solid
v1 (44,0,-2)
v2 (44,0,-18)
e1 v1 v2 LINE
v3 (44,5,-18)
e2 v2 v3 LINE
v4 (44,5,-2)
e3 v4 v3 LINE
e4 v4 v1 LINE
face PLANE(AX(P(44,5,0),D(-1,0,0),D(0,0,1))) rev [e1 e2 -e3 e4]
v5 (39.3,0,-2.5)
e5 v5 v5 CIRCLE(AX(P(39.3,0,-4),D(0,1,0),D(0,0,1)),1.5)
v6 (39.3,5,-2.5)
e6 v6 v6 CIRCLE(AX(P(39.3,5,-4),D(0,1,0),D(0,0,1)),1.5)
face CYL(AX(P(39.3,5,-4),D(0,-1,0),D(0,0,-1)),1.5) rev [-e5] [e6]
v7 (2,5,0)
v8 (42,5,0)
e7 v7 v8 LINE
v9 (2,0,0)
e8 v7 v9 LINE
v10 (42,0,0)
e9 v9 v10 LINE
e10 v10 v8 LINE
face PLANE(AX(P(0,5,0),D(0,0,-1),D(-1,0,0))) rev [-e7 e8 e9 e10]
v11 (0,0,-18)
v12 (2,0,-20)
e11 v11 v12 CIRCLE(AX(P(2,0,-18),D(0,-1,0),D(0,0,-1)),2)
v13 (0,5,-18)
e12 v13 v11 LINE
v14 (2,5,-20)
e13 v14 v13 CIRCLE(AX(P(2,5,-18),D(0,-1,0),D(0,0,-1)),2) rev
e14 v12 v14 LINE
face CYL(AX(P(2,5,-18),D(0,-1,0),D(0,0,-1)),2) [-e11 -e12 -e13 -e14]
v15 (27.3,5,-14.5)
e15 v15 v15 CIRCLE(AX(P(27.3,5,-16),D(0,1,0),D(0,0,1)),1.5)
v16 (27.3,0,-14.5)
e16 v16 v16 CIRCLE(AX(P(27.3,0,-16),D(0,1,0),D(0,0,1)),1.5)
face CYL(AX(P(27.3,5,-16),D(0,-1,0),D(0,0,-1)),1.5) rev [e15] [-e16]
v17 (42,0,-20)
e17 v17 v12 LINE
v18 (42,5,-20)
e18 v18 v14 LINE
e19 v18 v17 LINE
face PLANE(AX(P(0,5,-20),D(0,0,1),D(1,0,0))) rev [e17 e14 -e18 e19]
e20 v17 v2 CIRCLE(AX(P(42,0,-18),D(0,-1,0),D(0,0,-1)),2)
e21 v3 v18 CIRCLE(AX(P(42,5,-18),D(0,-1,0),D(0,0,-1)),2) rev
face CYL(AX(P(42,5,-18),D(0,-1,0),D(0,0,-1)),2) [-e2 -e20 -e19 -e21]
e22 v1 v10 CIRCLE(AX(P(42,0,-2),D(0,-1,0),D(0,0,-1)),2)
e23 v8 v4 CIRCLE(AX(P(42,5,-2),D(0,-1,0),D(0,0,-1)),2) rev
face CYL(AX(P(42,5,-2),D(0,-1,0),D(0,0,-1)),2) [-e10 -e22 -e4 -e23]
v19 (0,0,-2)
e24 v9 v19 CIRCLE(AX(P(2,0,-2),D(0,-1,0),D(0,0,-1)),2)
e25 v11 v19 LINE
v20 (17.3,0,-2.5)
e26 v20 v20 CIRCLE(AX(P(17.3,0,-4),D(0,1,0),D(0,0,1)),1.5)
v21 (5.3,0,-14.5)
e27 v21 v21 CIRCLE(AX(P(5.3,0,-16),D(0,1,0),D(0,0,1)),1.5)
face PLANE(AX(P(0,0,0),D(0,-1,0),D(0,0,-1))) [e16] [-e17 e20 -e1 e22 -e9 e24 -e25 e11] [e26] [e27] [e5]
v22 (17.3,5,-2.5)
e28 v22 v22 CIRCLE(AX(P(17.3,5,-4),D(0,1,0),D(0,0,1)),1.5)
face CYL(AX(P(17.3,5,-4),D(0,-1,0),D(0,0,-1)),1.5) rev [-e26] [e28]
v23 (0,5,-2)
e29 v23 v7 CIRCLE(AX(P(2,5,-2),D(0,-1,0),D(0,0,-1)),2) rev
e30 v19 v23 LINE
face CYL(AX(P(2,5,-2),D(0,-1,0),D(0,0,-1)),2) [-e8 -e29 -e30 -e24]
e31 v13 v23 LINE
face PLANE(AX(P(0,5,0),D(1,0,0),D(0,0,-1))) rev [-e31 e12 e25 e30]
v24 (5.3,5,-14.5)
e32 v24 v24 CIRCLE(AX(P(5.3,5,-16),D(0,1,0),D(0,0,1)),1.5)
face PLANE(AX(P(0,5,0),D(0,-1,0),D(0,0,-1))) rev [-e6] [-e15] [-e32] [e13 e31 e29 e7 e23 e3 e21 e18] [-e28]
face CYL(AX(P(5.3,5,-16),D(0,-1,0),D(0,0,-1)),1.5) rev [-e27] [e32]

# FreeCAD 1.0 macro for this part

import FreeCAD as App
import Part
import Sketcher
from FreeCAD import Vector
Q = App.Units.Quantity


def edges_at(feature, points):
    """Names of the edges that pass closest to the given points."""
    edges = feature.Shape.Edges
    near = lambda p: min(range(len(edges)), key=lambda i: edges[i].distToShape(Part.Vertex(*p))[0])
    return sorted({f"Edge{near(p) + 1}" for p in points})

doc = App.newDocument("Part")
body = doc.addObject("PartDesign::Body", "Body")

# Sketch on XZ plane
sketch1 = body.newObject("Sketcher::SketchObject", "Sketch")
sketch1.AttachmentSupport = (doc.getObject("XZ_Plane"), [""])
sketch1.MapMode = "FlatFace"
sketch1.addGeometry([
    Part.LineSegment(Vector(0, -20, 0), Vector(0, 0, 0)),  # 0
    Part.LineSegment(Vector(0, 0, 0), Vector(44, 0, 0)),  # 1
    Part.LineSegment(Vector(44, 0, 0), Vector(44, -20, 0)),  # 2
    Part.LineSegment(Vector(44, -20, 0), Vector(0, -20, 0)),  # 3
    Part.Circle(Vector(17.3, -4, 0), Vector(0, 0, 1), 1.5),  # 4
    Part.Circle(Vector(39.3, -4, 0), Vector(0, 0, 1), 1.5),  # 5
    Part.Circle(Vector(5.3, -16, 0), Vector(0, 0, 1), 1.5),  # 6
    Part.Circle(Vector(27.3, -16, 0), Vector(0, 0, 1), 1.5),  # 7
], False)
sketch1.addConstraint([
    Sketcher.Constraint("Coincident", 0, 2, 1, 1),
    Sketcher.Constraint("Coincident", 1, 2, 2, 1),
    Sketcher.Constraint("Coincident", 2, 2, 3, 1),
    Sketcher.Constraint("Coincident", 3, 2, 0, 1),
    Sketcher.Constraint("Vertical", 0),
    Sketcher.Constraint("Horizontal", 1),
    Sketcher.Constraint("Vertical", 2),
    Sketcher.Constraint("Horizontal", 3),
    Sketcher.Constraint("Coincident", 0, 2, -1, 1),
    Sketcher.Constraint("Equal", 4, 5),
    Sketcher.Constraint("Equal", 5, 6),
    Sketcher.Constraint("Equal", 6, 7),
    Sketcher.Constraint("Horizontal", 4, 3, 5, 3),
    Sketcher.Constraint("Horizontal", 6, 3, 7, 3),
    Sketcher.Constraint("Diameter", 4, Q("3 mm")),
    Sketcher.Constraint("DistanceX", 1, 1, 1, 2, Q("44 mm")),
    Sketcher.Constraint("DistanceY", 0, 1, 0, 2, Q("20 mm")),
    Sketcher.Constraint("DistanceY", 4, 3, -1, 1, Q("4 mm")),
    Sketcher.Constraint("DistanceY", 6, 3, -1, 1, Q("16 mm")),
    Sketcher.Constraint("DistanceX", 4, 3, 5, 3, Q("22 mm")),
    Sketcher.Constraint("DistanceX", 6, 3, 4, 3, Q("12 mm")),
    Sketcher.Constraint("DistanceX", 4, 3, 7, 3, Q("10 mm")),
    Sketcher.Constraint("DistanceX", -1, 1, 4, 3, Q("17.3 mm")),
])
pad1 = body.newObject("PartDesign::Pad", "Pad")
pad1.Profile = sketch1
pad1.Length = 5
pad1.Reversed = True
doc.recompute()

fillet = body.newObject("PartDesign::Fillet", "Fillet")
fillet.Base = (pad1, edges_at(pad1, [
    (0, 2.5, -20),
    (44, 2.5, -20),
    (44, 2.5, 0),
    (0, 2.5, 0),
]))
fillet.Radius = 2

doc.recompute()
